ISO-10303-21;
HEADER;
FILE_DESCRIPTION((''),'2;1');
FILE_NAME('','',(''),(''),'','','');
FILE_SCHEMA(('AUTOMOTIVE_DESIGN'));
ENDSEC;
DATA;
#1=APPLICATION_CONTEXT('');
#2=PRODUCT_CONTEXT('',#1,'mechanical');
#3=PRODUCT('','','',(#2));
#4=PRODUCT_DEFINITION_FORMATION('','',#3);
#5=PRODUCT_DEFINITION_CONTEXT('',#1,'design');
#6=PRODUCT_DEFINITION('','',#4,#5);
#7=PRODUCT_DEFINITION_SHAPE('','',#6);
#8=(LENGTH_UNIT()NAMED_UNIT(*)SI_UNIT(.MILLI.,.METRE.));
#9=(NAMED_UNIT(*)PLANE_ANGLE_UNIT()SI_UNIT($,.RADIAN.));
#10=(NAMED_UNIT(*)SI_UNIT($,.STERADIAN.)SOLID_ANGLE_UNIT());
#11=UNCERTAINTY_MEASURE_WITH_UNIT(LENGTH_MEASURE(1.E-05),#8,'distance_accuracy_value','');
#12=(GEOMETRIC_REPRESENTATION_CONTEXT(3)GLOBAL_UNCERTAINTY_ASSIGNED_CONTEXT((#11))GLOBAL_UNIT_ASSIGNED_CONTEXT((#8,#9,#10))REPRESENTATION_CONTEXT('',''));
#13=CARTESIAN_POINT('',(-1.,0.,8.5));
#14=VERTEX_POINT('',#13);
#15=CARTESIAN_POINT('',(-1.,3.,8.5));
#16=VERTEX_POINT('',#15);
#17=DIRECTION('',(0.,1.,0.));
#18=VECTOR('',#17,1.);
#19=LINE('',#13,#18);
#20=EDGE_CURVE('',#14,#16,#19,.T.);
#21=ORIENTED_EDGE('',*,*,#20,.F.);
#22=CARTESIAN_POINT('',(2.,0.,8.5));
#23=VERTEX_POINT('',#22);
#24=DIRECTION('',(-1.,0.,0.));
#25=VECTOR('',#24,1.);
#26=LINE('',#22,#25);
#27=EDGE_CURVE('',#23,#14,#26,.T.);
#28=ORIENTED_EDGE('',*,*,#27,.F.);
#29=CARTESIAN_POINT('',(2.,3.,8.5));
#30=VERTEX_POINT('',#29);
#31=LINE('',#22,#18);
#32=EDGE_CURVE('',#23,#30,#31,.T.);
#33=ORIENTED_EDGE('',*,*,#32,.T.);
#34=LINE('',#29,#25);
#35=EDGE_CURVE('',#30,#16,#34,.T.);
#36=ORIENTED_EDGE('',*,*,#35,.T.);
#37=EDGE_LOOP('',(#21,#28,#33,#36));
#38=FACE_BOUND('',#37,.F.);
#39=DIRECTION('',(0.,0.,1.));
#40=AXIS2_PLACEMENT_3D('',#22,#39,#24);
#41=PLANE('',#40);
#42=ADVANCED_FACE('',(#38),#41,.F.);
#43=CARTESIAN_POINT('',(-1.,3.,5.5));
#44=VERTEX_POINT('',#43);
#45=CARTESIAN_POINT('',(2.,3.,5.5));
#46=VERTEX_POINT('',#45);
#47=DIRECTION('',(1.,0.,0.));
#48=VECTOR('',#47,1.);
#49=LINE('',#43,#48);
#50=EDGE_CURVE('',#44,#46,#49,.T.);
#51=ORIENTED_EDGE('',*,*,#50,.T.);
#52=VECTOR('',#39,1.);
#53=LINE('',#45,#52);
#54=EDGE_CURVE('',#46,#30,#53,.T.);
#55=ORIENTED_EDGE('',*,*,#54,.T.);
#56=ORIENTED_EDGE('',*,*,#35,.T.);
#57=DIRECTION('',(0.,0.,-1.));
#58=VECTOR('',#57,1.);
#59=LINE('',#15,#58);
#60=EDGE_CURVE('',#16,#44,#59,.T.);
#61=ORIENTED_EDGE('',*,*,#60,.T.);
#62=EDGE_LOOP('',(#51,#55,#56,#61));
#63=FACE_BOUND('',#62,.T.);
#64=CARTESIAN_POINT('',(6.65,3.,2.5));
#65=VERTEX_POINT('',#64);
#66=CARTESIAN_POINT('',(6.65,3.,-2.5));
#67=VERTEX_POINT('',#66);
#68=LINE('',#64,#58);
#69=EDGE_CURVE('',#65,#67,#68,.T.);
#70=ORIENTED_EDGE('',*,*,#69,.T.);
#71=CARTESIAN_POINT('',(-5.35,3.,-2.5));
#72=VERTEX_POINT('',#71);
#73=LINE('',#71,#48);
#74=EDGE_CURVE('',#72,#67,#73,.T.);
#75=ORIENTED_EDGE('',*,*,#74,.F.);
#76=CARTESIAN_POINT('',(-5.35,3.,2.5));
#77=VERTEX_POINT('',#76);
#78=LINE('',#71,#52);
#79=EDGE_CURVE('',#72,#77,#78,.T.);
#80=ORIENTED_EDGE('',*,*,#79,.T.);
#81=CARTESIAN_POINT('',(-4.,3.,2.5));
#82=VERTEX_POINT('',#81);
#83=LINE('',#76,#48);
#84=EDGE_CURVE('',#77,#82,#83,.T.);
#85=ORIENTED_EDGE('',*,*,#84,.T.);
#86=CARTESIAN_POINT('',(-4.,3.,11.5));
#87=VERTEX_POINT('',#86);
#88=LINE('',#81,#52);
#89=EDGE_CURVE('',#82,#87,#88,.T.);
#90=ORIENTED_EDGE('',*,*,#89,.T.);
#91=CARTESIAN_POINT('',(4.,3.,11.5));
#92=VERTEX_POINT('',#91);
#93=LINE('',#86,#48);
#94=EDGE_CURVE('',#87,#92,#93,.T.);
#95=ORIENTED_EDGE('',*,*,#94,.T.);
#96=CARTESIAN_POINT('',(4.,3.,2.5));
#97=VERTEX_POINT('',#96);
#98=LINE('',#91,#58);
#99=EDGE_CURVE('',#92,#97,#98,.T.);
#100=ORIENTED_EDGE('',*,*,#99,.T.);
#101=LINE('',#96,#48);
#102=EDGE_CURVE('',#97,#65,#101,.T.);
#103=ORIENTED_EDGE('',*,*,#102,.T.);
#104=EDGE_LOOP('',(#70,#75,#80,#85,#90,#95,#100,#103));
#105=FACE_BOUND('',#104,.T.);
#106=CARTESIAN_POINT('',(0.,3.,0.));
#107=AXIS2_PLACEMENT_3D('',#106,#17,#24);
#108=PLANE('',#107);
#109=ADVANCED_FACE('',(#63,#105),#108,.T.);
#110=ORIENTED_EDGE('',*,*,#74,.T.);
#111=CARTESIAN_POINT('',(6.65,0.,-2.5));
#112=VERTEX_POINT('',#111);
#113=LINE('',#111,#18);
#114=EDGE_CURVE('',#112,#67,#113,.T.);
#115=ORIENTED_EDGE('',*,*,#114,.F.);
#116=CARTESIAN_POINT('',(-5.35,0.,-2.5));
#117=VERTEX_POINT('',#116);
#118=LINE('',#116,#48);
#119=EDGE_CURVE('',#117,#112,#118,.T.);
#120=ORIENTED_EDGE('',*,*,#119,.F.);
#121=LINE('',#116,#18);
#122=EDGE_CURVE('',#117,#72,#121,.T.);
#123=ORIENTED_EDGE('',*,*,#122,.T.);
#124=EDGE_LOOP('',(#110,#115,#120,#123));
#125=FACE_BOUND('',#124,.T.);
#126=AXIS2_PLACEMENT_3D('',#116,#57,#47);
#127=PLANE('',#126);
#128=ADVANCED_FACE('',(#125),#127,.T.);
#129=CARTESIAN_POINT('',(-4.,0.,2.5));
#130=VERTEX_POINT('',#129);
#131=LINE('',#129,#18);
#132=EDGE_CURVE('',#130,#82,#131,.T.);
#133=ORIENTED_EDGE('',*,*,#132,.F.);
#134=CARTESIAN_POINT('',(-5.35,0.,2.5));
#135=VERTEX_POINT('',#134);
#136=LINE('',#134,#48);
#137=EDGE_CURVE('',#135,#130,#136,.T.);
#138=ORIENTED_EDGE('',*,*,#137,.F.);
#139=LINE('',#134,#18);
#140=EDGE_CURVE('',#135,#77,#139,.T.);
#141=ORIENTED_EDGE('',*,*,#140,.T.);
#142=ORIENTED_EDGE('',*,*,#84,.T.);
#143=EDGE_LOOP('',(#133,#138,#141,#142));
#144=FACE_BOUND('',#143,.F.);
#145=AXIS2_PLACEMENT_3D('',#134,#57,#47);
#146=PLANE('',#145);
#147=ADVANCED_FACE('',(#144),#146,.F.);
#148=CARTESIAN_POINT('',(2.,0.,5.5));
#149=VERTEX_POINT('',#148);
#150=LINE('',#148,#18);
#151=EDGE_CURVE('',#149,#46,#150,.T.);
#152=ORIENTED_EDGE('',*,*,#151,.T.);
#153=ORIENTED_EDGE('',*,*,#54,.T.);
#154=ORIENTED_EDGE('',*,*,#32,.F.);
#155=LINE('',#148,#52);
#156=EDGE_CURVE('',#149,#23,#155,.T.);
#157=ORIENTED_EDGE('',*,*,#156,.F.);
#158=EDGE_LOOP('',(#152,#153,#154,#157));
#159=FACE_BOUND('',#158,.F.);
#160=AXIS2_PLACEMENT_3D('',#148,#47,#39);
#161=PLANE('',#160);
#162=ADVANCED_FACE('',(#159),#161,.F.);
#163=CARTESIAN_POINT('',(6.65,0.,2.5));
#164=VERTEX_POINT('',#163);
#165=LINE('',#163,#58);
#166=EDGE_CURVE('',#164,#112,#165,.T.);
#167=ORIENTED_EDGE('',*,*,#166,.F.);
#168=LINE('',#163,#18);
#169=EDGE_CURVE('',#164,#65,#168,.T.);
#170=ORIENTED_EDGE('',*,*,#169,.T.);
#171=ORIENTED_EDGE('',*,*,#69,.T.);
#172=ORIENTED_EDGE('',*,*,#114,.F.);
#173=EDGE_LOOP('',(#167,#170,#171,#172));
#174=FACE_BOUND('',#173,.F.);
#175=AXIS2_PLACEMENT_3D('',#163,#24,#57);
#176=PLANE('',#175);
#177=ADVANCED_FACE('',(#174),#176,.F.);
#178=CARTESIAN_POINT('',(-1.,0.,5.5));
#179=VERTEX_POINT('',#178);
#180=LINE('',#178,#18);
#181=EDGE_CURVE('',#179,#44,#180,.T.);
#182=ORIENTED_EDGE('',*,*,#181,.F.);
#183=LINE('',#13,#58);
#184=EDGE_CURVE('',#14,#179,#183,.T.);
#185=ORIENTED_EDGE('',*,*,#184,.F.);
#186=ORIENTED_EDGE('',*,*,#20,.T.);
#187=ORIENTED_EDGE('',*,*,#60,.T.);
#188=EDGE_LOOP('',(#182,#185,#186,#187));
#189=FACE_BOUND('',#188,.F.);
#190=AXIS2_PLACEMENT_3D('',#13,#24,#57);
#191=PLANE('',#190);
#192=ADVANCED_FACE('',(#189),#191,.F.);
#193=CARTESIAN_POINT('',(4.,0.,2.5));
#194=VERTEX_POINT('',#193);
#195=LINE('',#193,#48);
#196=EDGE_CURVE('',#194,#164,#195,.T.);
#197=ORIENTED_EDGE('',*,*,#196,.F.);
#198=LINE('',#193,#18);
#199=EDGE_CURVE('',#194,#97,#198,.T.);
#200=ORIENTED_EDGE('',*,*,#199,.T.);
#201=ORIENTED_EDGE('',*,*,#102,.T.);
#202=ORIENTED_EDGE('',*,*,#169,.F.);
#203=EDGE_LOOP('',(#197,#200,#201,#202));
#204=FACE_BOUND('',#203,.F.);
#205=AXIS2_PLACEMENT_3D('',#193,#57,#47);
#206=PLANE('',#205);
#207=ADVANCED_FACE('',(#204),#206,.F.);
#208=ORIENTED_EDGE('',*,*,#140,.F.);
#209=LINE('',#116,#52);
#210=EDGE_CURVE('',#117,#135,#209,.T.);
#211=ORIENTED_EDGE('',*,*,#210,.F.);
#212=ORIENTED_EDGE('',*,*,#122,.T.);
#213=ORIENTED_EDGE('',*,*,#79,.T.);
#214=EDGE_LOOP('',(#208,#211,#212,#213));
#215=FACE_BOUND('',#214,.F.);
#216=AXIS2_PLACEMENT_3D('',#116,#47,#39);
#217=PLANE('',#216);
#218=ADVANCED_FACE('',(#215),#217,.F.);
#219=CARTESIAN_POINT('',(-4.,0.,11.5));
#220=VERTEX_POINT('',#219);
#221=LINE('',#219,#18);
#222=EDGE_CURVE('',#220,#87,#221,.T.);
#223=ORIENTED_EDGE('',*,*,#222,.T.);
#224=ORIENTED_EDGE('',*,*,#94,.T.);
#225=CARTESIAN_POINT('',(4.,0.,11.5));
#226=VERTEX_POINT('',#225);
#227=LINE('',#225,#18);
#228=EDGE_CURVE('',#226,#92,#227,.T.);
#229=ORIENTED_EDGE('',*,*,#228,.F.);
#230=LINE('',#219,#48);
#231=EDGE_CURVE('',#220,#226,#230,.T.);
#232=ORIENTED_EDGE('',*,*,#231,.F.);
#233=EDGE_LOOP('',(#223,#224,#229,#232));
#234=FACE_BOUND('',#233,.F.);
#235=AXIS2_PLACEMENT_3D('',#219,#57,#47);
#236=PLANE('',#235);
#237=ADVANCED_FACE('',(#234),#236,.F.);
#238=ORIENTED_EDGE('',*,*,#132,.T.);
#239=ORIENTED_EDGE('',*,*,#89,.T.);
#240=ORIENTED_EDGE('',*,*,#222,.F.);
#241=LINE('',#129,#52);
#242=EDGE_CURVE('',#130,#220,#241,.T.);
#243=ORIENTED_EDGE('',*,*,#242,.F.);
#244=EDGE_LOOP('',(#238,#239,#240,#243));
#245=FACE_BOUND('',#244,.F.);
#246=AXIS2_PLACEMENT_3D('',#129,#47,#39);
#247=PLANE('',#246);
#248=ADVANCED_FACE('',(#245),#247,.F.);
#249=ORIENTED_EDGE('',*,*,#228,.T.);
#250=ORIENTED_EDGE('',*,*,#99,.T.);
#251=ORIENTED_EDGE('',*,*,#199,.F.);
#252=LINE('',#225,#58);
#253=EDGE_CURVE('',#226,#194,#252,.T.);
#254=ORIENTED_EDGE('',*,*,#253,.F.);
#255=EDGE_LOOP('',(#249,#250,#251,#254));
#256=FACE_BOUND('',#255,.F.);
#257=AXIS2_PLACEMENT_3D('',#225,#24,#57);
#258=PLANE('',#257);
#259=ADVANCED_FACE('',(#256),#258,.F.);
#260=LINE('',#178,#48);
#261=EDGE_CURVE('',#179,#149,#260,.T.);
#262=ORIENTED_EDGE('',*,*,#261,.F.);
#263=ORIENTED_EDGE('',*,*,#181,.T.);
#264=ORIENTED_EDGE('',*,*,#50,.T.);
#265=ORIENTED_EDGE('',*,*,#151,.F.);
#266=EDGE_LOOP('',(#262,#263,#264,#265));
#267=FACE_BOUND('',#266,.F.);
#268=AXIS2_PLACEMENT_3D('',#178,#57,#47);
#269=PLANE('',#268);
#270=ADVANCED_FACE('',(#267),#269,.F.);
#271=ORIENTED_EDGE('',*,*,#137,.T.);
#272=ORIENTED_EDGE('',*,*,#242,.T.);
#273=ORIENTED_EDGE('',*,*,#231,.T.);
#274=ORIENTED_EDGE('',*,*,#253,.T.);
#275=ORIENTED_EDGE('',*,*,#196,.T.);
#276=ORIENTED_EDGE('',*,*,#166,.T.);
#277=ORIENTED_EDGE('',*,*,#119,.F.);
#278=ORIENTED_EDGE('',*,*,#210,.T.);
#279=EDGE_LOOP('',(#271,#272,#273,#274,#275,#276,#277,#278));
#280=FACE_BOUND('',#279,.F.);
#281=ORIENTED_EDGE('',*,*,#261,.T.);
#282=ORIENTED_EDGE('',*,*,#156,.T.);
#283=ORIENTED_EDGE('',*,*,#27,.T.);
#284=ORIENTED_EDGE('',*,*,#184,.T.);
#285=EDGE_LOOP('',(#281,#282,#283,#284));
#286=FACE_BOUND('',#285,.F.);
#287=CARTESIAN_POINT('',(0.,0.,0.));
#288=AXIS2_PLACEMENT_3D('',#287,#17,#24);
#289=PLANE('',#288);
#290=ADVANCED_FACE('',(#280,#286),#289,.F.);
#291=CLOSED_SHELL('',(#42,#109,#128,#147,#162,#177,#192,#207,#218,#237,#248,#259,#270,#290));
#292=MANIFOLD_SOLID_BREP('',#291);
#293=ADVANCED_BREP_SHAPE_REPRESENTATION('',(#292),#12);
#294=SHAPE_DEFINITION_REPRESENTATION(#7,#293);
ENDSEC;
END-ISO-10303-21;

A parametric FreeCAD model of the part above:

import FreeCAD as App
import Part
import Sketcher

V = App.Vector

doc = App.newDocument("Part")
body = doc.addObject("PartDesign::Body", "Body")

# Sketch on XZ plane
sketch1 = doc.addObject("Sketcher::SketchObject", "Sketch")
body.addObject(sketch1)
sketch1.AttachmentSupport = (doc.XZ_Plane, [""])
sketch1.MapMode = "FlatFace"
sketch1.addGeometry(Part.LineSegment(V(-4, 2.5, 0), V(-4, 11.5, 0)), False)
sketch1.addGeometry(Part.LineSegment(V(-4, 11.5, 0), V(4, 11.5, 0)), False)
sketch1.addGeometry(Part.LineSegment(V(4, 11.5, 0), V(4, 2.5, 0)), False)
sketch1.addGeometry(Part.LineSegment(V(4, 2.5, 0), V(6.7, 2.5, 0)), False)
sketch1.addGeometry(Part.LineSegment(V(6.7, 2.5, 0), V(6.7, -2.5, 0)), False)
sketch1.addGeometry(Part.LineSegment(V(6.7, -2.5, 0), V(-5.3, -2.5, 0)), False)
sketch1.addGeometry(Part.LineSegment(V(-5.3, -2.5, 0), V(-5.3, 2.5, 0)), False)
sketch1.addGeometry(Part.LineSegment(V(-5.3, 2.5, 0), V(-4, 2.5, 0)), False)
sketch1.addGeometry(Part.LineSegment(V(-1, 8.5, 0), V(-1, 5.5, 0)), False)
sketch1.addGeometry(Part.LineSegment(V(-1, 5.5, 0), V(2, 5.5, 0)), False)
sketch1.addGeometry(Part.LineSegment(V(2, 5.5, 0), V(2, 8.5, 0)), False)
sketch1.addGeometry(Part.LineSegment(V(2, 8.5, 0), V(-1, 8.5, 0)), False)
sketch1.addConstraint(Sketcher.Constraint("Coincident", 0, 2, 1, 1))
sketch1.addConstraint(Sketcher.Constraint("Coincident", 1, 2, 2, 1))
sketch1.addConstraint(Sketcher.Constraint("Coincident", 2, 2, 3, 1))
sketch1.addConstraint(Sketcher.Constraint("Coincident", 3, 2, 4, 1))
sketch1.addConstraint(Sketcher.Constraint("Coincident", 4, 2, 5, 1))
sketch1.addConstraint(Sketcher.Constraint("Coincident", 5, 2, 6, 1))
sketch1.addConstraint(Sketcher.Constraint("Coincident", 6, 2, 7, 1))
sketch1.addConstraint(Sketcher.Constraint("Coincident", 7, 2, 0, 1))
sketch1.addConstraint(Sketcher.Constraint("Coincident", 8, 2, 9, 1))
sketch1.addConstraint(Sketcher.Constraint("Coincident", 9, 2, 10, 1))
sketch1.addConstraint(Sketcher.Constraint("Coincident", 10, 2, 11, 1))
sketch1.addConstraint(Sketcher.Constraint("Coincident", 11, 2, 8, 1))
sketch1.addConstraint(Sketcher.Constraint("Vertical", 0))
sketch1.addConstraint(Sketcher.Constraint("Horizontal", 1))
sketch1.addConstraint(Sketcher.Constraint("Vertical", 2))
sketch1.addConstraint(Sketcher.Constraint("Horizontal", 3))
sketch1.addConstraint(Sketcher.Constraint("Vertical", 4))
sketch1.addConstraint(Sketcher.Constraint("Horizontal", 5))
sketch1.addConstraint(Sketcher.Constraint("Vertical", 6))
sketch1.addConstraint(Sketcher.Constraint("Horizontal", 7))
sketch1.addConstraint(Sketcher.Constraint("Vertical", 8))
sketch1.addConstraint(Sketcher.Constraint("Horizontal", 9))
sketch1.addConstraint(Sketcher.Constraint("Vertical", 10))
sketch1.addConstraint(Sketcher.Constraint("Horizontal", 11))
sketch1.addConstraint(Sketcher.Constraint("Symmetric", 2, 2, 7, 2, -2))
sketch1.addConstraint(Sketcher.Constraint("Equal", 11, 8))
sketch1.addConstraint(Sketcher.Constraint("DistanceX", 1, 1, 1, 2, 8.0))
sketch1.addConstraint(Sketcher.Constraint("DistanceX", 5, 2, 5, 1, 12.0))
sketch1.addConstraint(Sketcher.Constraint("DistanceX", 9, 1, 9, 2, 3.0))
sketch1.addConstraint(Sketcher.Constraint("DistanceY", 0, 1, 0, 2, 9.0))
sketch1.addConstraint(Sketcher.Constraint("DistanceY", 4, 2, 4, 1, 5.0))
sketch1.addConstraint(Sketcher.Constraint("DistanceX", 7, 2, 8, 2, 3.0))
sketch1.addConstraint(Sketcher.Constraint("DistanceY", 7, 2, 8, 2, 3.0))
sketch1.addConstraint(Sketcher.Constraint("DistanceX", 7, 1, 7, 2, 1.35))
sketch1.addConstraint(Sketcher.Constraint("DistanceY", -1, 1, 0, 2, 11.5))
pad1 = doc.addObject("PartDesign::Pad", "Pad")
body.addObject(pad1)
pad1.Profile = sketch1
pad1.Length = 3
pad1.Reversed = True

doc.recompute()
